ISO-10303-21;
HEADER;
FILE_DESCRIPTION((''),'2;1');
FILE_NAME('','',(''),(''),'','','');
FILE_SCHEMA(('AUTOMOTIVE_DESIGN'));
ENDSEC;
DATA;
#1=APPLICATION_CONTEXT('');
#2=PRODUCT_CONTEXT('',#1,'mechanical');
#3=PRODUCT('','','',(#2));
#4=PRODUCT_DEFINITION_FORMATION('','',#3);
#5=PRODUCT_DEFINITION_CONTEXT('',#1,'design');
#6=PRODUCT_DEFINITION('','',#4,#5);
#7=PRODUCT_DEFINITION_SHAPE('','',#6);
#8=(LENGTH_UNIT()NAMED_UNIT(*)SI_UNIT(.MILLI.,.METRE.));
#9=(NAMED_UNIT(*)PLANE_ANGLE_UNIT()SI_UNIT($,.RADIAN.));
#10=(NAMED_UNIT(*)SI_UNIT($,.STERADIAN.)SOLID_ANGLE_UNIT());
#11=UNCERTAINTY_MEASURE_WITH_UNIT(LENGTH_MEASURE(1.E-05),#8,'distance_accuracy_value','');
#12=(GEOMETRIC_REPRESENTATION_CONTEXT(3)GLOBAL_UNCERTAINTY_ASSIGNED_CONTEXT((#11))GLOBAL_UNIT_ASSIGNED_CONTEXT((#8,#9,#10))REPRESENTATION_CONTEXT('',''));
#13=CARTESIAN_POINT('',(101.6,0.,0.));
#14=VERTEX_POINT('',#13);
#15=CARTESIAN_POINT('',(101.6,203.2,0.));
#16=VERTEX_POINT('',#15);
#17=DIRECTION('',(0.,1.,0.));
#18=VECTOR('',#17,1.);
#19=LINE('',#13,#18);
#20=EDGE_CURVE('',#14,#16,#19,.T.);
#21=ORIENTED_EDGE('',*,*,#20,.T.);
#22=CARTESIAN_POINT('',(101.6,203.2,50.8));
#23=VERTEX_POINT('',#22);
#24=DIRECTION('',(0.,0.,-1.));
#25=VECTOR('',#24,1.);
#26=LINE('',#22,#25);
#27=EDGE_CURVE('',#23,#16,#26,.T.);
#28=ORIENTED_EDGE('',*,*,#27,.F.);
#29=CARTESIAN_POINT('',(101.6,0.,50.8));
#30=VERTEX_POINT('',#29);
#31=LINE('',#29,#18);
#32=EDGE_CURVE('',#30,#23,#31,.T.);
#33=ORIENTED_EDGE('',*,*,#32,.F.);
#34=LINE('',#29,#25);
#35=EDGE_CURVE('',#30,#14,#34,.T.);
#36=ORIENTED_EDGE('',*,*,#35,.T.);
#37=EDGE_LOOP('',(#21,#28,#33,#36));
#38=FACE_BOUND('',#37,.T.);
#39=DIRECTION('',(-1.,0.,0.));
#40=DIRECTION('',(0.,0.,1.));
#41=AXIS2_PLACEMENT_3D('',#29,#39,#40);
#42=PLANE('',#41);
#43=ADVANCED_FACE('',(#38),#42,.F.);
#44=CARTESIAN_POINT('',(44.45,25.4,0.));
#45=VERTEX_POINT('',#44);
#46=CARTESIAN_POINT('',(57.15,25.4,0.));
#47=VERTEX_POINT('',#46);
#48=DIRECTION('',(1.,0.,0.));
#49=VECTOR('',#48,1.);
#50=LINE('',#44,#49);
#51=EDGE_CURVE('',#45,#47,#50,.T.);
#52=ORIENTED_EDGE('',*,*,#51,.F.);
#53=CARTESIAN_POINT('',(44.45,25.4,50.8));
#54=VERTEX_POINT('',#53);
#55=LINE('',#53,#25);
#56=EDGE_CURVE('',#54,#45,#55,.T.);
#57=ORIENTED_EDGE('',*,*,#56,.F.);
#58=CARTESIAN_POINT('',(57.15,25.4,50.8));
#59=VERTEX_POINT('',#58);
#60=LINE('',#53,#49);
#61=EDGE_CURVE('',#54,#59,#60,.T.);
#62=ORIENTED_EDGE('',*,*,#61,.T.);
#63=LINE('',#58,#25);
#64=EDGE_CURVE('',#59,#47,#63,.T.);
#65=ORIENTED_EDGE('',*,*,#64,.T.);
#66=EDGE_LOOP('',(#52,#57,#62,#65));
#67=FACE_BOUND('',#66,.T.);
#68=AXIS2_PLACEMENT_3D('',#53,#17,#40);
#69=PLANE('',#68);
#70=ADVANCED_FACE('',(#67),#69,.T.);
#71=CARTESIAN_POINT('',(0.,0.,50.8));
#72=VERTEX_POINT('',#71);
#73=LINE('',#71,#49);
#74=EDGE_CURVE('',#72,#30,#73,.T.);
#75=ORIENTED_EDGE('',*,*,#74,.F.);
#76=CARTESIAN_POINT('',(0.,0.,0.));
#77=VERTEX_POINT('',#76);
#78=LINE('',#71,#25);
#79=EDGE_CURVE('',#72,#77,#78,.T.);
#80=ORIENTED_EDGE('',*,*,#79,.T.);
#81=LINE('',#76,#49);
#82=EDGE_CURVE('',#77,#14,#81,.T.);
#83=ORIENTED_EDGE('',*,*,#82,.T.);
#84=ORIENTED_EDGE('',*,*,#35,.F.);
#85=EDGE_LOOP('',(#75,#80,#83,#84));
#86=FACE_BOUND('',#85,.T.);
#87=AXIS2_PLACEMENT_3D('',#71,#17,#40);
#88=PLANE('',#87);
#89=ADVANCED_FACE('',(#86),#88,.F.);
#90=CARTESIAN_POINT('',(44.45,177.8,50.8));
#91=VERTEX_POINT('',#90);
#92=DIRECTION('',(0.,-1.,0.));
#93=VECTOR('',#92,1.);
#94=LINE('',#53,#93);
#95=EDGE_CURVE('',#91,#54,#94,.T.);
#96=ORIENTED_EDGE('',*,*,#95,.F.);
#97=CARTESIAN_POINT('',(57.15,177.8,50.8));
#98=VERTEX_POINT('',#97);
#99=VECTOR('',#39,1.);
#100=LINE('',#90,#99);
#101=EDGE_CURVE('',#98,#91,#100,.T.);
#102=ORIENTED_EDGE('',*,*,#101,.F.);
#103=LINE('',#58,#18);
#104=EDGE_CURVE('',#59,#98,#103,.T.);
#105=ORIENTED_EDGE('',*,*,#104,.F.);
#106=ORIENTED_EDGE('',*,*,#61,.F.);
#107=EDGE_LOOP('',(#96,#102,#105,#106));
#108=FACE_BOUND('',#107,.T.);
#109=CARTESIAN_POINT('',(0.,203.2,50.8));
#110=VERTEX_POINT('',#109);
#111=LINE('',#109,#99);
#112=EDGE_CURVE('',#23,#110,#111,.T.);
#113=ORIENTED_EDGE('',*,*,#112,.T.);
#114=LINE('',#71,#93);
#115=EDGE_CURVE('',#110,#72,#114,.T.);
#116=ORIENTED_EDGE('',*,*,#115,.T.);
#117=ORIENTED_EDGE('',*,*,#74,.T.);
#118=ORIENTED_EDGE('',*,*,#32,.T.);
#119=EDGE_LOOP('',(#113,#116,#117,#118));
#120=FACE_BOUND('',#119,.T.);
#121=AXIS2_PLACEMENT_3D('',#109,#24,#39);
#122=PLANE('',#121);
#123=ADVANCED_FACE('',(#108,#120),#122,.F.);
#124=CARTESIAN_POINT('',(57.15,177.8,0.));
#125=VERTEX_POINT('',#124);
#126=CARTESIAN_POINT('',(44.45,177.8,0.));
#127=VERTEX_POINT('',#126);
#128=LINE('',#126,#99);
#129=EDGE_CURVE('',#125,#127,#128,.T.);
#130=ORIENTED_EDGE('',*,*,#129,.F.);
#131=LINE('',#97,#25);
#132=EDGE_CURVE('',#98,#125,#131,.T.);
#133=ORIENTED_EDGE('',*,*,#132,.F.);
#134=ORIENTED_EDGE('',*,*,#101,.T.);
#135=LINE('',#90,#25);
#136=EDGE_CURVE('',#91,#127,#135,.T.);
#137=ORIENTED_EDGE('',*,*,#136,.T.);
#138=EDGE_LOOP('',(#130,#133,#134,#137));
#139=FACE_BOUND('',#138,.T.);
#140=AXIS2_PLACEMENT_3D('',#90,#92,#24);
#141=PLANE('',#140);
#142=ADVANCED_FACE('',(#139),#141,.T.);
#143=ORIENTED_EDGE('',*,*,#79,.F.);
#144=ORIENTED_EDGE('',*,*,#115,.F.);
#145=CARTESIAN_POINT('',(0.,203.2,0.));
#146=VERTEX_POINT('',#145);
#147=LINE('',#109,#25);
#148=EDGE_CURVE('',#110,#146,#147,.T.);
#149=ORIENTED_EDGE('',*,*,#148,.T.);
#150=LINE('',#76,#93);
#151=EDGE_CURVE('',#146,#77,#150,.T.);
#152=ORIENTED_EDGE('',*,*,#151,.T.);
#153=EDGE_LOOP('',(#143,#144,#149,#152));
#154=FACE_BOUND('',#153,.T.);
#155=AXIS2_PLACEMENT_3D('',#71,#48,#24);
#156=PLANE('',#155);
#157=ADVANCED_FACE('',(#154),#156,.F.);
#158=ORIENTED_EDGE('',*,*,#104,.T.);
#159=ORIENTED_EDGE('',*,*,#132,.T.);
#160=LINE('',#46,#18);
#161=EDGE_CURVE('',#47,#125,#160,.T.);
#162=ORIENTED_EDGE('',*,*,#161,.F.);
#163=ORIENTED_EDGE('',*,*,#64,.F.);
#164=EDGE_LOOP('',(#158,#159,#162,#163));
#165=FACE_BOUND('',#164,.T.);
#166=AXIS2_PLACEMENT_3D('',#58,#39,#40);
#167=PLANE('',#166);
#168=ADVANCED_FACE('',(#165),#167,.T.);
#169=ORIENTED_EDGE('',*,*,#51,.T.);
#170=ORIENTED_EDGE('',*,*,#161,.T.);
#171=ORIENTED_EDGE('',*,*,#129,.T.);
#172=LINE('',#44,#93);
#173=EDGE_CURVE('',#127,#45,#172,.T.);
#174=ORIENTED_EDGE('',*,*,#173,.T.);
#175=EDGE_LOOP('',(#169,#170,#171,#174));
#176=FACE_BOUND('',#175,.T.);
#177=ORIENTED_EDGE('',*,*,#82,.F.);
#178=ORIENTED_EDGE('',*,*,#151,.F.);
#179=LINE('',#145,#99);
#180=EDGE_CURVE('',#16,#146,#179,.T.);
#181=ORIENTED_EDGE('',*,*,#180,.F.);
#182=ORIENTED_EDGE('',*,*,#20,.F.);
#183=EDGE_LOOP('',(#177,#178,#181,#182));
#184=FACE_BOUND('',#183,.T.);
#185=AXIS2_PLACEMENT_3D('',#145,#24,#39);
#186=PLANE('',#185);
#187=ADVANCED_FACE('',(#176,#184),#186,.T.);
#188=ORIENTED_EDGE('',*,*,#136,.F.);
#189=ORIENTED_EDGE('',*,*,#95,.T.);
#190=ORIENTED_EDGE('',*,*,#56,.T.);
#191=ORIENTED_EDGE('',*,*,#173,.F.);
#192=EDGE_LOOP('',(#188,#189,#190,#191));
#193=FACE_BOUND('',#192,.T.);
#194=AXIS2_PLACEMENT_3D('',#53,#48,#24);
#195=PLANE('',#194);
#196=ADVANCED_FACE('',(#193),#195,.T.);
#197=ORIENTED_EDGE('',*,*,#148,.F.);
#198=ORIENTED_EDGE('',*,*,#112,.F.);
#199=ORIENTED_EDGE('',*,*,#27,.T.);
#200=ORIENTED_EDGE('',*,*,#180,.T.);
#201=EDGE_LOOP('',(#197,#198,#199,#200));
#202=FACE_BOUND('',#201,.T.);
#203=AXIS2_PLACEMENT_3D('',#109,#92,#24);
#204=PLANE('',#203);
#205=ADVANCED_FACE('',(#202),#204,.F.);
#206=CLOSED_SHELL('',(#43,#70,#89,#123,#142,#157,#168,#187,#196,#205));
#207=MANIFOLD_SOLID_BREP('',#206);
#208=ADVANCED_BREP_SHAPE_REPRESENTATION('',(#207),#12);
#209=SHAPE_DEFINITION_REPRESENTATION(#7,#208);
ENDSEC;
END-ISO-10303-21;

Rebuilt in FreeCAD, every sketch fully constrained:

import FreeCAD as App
import Part
import Sketcher

V = App.Vector
Q = App.Units.Quantity


def add_polygon(sketch, points):
    """Adds a closed chain of lines whose ends are joined by coincident constraints."""
    first, n = sketch.GeometryCount, len(points)
    for a, b in zip(points, points[1:] + points[:1]):
        sketch.addGeometry(Part.LineSegment(App.Vector(*a, 0), App.Vector(*b, 0)), False)
    for i in range(n):
        sketch.addConstraint(Sketcher.Constraint("Coincident", first + i, 2, first + (i + 1) % n, 1))

doc = App.newDocument("Part")
params = doc.addObject("Spreadsheet::Sheet", "Params")
for row, (alias, value) in enumerate([
    ("sketch1_width", "4 in"),
    ("sketch1_height", "8 in"),
    ("sketch1_height2", "6 in"),
    ("sketch1_width2", "0.5 in"),
    ("pad1_length", "2 in"),
], start=1):
    params.set(f"A{row}", alias)
    params.set(f"B{row}", "=" + value)
    params.setAlias(f"B{row}", alias)

body = doc.addObject("PartDesign::Body", "Body")

# Sketch on XY plane
sketch1 = body.newObject("Sketcher::SketchObject", "Sketch")
sketch1.AttachmentSupport = (doc.getObject("XY_Plane"), [""])
sketch1.MapMode = "FlatFace"
add_polygon(sketch1, [(0, 203), (0, 0), (102, 0), (102, 203)])  # lines 0-3
add_polygon(sketch1, [(57, 25), (44, 25), (44, 178), (57, 178)])  # lines 4-7
sketch1.addConstraint(Sketcher.Constraint("Vertical", 0))
sketch1.addConstraint(Sketcher.Constraint("Horizontal", 1))
sketch1.addConstraint(Sketcher.Constraint("Vertical", 2))
sketch1.addConstraint(Sketcher.Constraint("Horizontal", 3))
sketch1.addConstraint(Sketcher.Constraint("Horizontal", 4))
sketch1.addConstraint(Sketcher.Constraint("Vertical", 5))
sketch1.addConstraint(Sketcher.Constraint("Horizontal", 6))
sketch1.addConstraint(Sketcher.Constraint("Vertical", 7))
sketch1.addConstraint(Sketcher.Constraint("Coincident", 0, 2, -1, 1))
sketch1.addConstraint(Sketcher.Constraint("DistanceX", 1, 1, 1, 2, Q("4 in")))
sketch1.addConstraint(Sketcher.Constraint("DistanceY", 0, 2, 0, 1, Q("8 in")))
sketch1.addConstraint(Sketcher.Constraint("DistanceY", 5, 1, 5, 2, Q("6 in")))
sketch1.addConstraint(Sketcher.Constraint("DistanceX", 4, 2, 4, 1, Q("0.5 in")))
sketch1.addConstraint(Sketcher.Constraint("DistanceY", -1, 1, 4, 2, Q("1 in")))
sketch1.addConstraint(Sketcher.Constraint("DistanceX", -1, 1, 4, 2, Q("1.75 in")))
sketch1.setExpression("Constraints[17]", "Params.sketch1_width")
sketch1.setExpression("Constraints[18]", "Params.sketch1_height")
sketch1.setExpression("Constraints[19]", "Params.sketch1_height2")
sketch1.setExpression("Constraints[20]", "Params.sketch1_width2")
pad1 = body.newObject("PartDesign::Pad", "Pad")
pad1.Profile = sketch1
pad1.setExpression("Length", "Params.pad1_length")

doc.recompute()
